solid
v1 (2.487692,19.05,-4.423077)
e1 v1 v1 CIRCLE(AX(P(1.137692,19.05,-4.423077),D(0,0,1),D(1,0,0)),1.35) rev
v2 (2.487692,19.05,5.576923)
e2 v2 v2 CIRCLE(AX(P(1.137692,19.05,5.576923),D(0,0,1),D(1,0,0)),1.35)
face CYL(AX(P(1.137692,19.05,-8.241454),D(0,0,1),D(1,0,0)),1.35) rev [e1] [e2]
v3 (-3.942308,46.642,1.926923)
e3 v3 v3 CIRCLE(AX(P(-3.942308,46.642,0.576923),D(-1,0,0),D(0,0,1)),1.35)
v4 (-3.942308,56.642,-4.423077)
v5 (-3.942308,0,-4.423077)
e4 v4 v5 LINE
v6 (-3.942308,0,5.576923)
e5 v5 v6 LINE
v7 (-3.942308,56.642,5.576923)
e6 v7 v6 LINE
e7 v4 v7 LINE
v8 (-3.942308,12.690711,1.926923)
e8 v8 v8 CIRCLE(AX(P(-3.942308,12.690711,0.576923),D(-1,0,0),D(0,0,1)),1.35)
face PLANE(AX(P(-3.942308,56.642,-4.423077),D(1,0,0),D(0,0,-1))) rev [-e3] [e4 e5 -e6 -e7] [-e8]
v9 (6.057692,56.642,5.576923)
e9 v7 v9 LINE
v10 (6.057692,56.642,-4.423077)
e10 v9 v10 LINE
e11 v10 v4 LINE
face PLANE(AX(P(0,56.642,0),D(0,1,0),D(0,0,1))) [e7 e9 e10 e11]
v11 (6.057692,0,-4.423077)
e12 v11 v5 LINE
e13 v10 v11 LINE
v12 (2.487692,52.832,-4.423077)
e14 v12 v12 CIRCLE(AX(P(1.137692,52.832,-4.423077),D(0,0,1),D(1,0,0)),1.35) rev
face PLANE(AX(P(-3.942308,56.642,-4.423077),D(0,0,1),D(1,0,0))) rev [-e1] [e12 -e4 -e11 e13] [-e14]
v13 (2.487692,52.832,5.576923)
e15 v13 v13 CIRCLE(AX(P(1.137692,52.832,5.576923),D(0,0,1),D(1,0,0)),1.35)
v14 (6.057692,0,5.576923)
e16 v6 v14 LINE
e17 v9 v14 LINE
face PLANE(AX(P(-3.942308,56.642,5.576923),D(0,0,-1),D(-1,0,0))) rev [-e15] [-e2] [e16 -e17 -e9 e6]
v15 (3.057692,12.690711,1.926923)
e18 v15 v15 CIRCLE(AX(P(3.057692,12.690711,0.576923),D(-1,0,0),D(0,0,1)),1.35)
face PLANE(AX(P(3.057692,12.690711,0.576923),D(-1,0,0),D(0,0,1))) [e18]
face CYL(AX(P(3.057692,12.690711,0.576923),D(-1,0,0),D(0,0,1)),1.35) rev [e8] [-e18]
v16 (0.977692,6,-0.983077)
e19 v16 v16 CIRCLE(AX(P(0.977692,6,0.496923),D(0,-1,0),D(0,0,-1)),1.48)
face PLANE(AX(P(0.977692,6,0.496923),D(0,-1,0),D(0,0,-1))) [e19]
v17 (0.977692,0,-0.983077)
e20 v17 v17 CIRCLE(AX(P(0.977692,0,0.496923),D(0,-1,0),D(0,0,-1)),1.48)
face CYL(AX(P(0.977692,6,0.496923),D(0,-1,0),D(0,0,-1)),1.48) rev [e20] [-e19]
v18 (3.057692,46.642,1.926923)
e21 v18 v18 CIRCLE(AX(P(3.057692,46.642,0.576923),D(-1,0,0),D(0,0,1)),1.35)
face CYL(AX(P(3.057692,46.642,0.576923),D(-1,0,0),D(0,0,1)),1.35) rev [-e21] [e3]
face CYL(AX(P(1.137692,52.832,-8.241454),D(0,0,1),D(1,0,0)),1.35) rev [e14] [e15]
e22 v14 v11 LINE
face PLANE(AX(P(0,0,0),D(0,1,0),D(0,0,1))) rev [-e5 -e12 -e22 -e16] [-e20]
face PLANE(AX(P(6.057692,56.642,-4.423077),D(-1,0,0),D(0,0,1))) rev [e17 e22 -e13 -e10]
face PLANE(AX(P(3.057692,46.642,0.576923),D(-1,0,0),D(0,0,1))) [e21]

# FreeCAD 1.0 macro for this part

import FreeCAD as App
import Part
import Sketcher

V = App.Vector
Q = App.Units.Quantity


def add_polygon(sketch, points):
    """Adds a closed chain of lines whose ends are joined by coincident constraints."""
    first, n = sketch.GeometryCount, len(points)
    for a, b in zip(points, points[1:] + points[:1]):
        sketch.addGeometry(Part.LineSegment(App.Vector(*a, 0), App.Vector(*b, 0)), False)
    for i in range(n):
        sketch.addConstraint(Sketcher.Constraint("Coincident", first + i, 2, first + (i + 1) % n, 1))

doc = App.newDocument("Part")
body = doc.addObject("PartDesign::Body", "Body")

# Sketch on XZ plane
sketch1 = doc.addObject("Sketcher::SketchObject", "Sketch")
body.addObject(sketch1)
sketch1.AttachmentSupport = (doc.XZ_Plane, [""])
sketch1.MapMode = "FlatFace"
add_polygon(sketch1, [(-4, -4), (-4, 6), (6, 6), (6, -4)])  # lines 0-3
sketch1.addConstraint([
    Sketcher.Constraint("Vertical", 0),
    Sketcher.Constraint("Horizontal", 1),
    Sketcher.Constraint("Vertical", 2),
    Sketcher.Constraint("Horizontal", 3),
    Sketcher.Constraint("Equal", 3, 0),
    Sketcher.Constraint("DistanceX", 1, 1, 1, 2, Q("10 mm")),
    Sketcher.Constraint("DistanceX", 0, 2, -1, 1, Q("3.942308 mm")),
    Sketcher.Constraint("DistanceY", -1, 1, 0, 2, Q("5.576923 mm")),
])
pad1 = doc.addObject("PartDesign::Pad", "Pad")
body.addObject(pad1)
pad1.Profile = sketch1
pad1.Length = 56.642
pad1.Reversed = True

# Sketch on XY plane
sketch2 = doc.addObject("Sketcher::SketchObject", "Sketch001")
body.addObject(sketch2)
sketch2.AttachmentSupport = (doc.XY_Plane, [""])
sketch2.MapMode = "FlatFace"
sketch2.AttachmentOffset = App.Placement(V(0, 0, 5.576923), App.Rotation())
sketch2.addGeometry([
    Part.Circle(V(1.1, 19.1, 0), V(0, 0, 1), 1.4),
    Part.Circle(V(1.1, 52.8, 0), V(0, 0, 1), 1.4),
], False)
sketch2.addConstraint([
    Sketcher.Constraint("Equal", 0, 1),
    Sketcher.Constraint("Vertical", 0, 3, 1, 3),
    Sketcher.Constraint("Diameter", 0, Q("2.7 mm")),
    Sketcher.Constraint("DistanceY", -1, 1, 0, 3, Q("19.05 mm")),
    Sketcher.Constraint("DistanceY", -1, 1, 1, 3, Q("52.832 mm")),
    Sketcher.Constraint("DistanceX", -1, 1, 0, 3, Q("1.137692 mm")),
])
pocket1 = doc.addObject("PartDesign::Pocket", "Pocket")
body.addObject(pocket1)
pocket1.Profile = sketch2
pocket1.Length = 10

# Sketch on YZ plane
sketch3 = doc.addObject("Sketcher::SketchObject", "Sketch002")
body.addObject(sketch3)
sketch3.AttachmentSupport = (doc.YZ_Plane, [""])
sketch3.MapMode = "FlatFace"
sketch3.AttachmentOffset = App.Placement(V(0, 0, -3.942308), App.Rotation())
sketch3.addGeometry([
    Part.Circle(V(12.7, 0.6, 0), V(0, 0, 1), 1.4),
    Part.Circle(V(46.6, 0.6, 0), V(0, 0, 1), 1.4),
], False)
sketch3.addConstraint([
    Sketcher.Constraint("Equal", 0, 1),
    Sketcher.Constraint("Horizontal", 0, 3, 1, 3),
    Sketcher.Constraint("Diameter", 0, Q("2.7 mm")),
    Sketcher.Constraint("DistanceX", -1, 1, 1, 3, Q("46.642 mm")),
    Sketcher.Constraint("DistanceX", -1, 1, 0, 3, Q("12.690711 mm")),
    Sketcher.Constraint("DistanceY", -1, 1, 0, 3, Q("0.576923 mm")),
])
pocket2 = doc.addObject("PartDesign::Pocket", "Pocket001")
body.addObject(pocket2)
pocket2.Profile = sketch3
pocket2.Length = 7
pocket2.Reversed = True

# Sketch on XZ plane
sketch4 = doc.addObject("Sketcher::SketchObject", "Sketch003")
body.addObject(sketch4)
sketch4.AttachmentSupport = (doc.XZ_Plane, [""])
sketch4.MapMode = "FlatFace"
sketch4.addGeometry(Part.Circle(V(1, 0.5, 0), V(0, 0, 1), 1.5), False)
sketch4.addConstraint([
    Sketcher.Constraint("Diameter", 0, Q("2.96 mm")),
    Sketcher.Constraint("DistanceX", -1, 1, 0, 3, Q("0.977692 mm")),
    Sketcher.Constraint("DistanceY", -1, 1, 0, 3, Q("0.496923 mm")),
])
pocket3 = doc.addObject("PartDesign::Pocket", "Pocket002")
body.addObject(pocket3)
pocket3.Profile = sketch4
pocket3.Length = 6

doc.recompute()
